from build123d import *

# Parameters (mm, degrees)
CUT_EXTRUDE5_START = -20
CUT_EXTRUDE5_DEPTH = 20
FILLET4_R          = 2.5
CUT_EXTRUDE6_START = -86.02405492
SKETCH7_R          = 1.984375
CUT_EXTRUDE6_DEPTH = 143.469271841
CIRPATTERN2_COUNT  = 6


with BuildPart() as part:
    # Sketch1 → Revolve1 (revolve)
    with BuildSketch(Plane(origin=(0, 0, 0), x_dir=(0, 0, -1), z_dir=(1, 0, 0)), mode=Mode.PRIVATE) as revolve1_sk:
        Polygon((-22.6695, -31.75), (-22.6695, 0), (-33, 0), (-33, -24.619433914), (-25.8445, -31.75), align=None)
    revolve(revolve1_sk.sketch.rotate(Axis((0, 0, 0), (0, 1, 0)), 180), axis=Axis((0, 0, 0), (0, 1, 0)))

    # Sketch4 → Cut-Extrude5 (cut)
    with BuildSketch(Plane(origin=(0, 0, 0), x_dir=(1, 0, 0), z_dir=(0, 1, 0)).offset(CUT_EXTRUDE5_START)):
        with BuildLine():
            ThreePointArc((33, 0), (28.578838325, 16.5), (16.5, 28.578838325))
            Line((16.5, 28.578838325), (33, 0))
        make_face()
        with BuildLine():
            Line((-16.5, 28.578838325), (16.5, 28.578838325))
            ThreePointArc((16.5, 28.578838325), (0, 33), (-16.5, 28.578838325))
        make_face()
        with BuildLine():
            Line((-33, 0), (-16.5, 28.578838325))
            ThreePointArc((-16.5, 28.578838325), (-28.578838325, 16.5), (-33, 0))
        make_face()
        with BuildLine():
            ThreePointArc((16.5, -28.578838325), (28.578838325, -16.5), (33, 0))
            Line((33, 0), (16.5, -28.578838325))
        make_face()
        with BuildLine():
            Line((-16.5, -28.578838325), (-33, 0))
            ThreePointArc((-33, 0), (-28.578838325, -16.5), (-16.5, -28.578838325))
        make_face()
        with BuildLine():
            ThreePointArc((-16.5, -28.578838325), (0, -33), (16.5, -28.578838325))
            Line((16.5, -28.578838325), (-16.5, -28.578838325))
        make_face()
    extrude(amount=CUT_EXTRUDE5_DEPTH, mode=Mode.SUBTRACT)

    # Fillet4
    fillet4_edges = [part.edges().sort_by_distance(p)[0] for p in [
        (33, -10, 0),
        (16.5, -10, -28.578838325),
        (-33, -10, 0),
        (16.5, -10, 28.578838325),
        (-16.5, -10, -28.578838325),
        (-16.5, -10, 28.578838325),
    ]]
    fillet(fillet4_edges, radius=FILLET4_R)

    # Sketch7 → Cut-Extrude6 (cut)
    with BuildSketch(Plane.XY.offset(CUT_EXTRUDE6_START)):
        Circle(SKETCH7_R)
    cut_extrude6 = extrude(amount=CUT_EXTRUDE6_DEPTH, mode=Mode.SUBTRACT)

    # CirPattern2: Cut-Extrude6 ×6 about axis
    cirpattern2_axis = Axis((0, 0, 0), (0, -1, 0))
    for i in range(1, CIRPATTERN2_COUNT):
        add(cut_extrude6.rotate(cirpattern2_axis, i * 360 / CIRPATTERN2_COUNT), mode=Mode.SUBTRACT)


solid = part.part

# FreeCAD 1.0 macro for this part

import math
import FreeCAD as App
import Part
import Sketcher
from FreeCAD import Vector
Q = App.Units.Quantity


def edges_at(feature, points):
    """Names of the edges that pass closest to the given points."""
    edges = feature.Shape.Edges
    near = lambda p: min(range(len(edges)), key=lambda i: edges[i].distToShape(Part.Vertex(*p))[0])
    return sorted({f"Edge{near(p) + 1}" for p in points})


def add_polygon(sketch, points):
    """Adds a closed chain of lines whose ends are joined by coincident constraints."""
    first, n = sketch.GeometryCount, len(points)
    for a, b in zip(points, points[1:] + points[:1]):
        sketch.addGeometry(Part.LineSegment(App.Vector(*a, 0), App.Vector(*b, 0)), False)
    for i in range(n):
        sketch.addConstraint(Sketcher.Constraint("Coincident", first + i, 2, first + (i + 1) % n, 1))

doc = App.newDocument("Part")
params = doc.addObject("Spreadsheet::Sheet", "Params")
for row, (alias, value) in enumerate([
    ("sketch1_width", "31.75 mm"),
    ("revolution_angle", "360 deg"),
    ("sketch2_radius", "33 mm"),
    ("sketch2_width", "33 mm"),
    ("pocket1_length", "20 mm"),
    ("fillet_radius", "2.5 mm"),
    ("pocket2_length", "143.469272 mm"),
], start=1):
    params.set(f"A{row}", alias)
    params.set(f"B{row}", "=" + value)
    params.setAlias(f"B{row}", alias)

body = doc.addObject("PartDesign::Body", "Body")

# Sketch on YZ plane
sketch1 = body.newObject("Sketcher::SketchObject", "Sketch")
sketch1.AttachmentSupport = (doc.getObject("YZ_Plane"), [""])
sketch1.MapMode = "FlatFace"
add_polygon(sketch1, [(-31.75, 22.6695), (0, 22.6695), (0, 33), (-24.619434, 33), (-31.75, 25.8445)])  # lines 0-4
sketch1.addConstraint([
    Sketcher.Constraint("Horizontal", 0),
    Sketcher.Constraint("Vertical", 1),
    Sketcher.Constraint("Horizontal", 2),
    Sketcher.Constraint("Vertical", 4),
    Sketcher.Constraint("PointOnObject", 0, 2, -2),
    Sketcher.Constraint("DistanceY", -1, 1, 1, 2, 33.0),
    Sketcher.Constraint("Angle", 3, Q("-134.9 deg")),
    Sketcher.Constraint("DistanceX", 0, 1, 0, 2, 31.75),
    Sketcher.Constraint("DistanceY", 4, 2, 4, 1, 3.175),
    Sketcher.Constraint("DistanceY", 1, 1, 1, 2, 10.3305),
])
sketch1.setExpression("Constraints[12]", "Params.sketch1_width")
revolution = body.newObject("PartDesign::Revolution", "Revolution")
revolution.Profile = sketch1
revolution.ReferenceAxis = (sketch1, ["H_Axis"])
revolution.setExpression("Angle", "Params.revolution_angle")

# Sketch on XZ plane
sketch2 = body.newObject("Sketcher::SketchObject", "Sketch001")
sketch2.AttachmentSupport = (doc.getObject("XZ_Plane"), [""])
sketch2.MapMode = "FlatFace"
sketch2.AttachmentOffset = App.Placement(Vector(0, 0, 20), App.Rotation())
sketch2.addGeometry([
    Part.ArcOfCircle(Part.Circle(Vector(0, 0, 0), Vector(0, 0, 1), 33), math.radians(-60), math.radians(0)),  # 0
    Part.LineSegment(Vector(16.5, -28.578838, 0), Vector(33, 0, 0)),  # 1
    Part.LineSegment(Vector(-16.5, -28.578838, 0), Vector(16.5, -28.578838, 0)),  # 2
    Part.ArcOfCircle(Part.Circle(Vector(0, 0, 0), Vector(0, 0, 1), 33), math.radians(-120), math.radians(-60)),  # 3
    Part.LineSegment(Vector(-33, 0, 0), Vector(-16.5, -28.578838, 0)),  # 4
    Part.ArcOfCircle(Part.Circle(Vector(0, 0, 0), Vector(0, 0, 1), 33), math.radians(180), math.radians(240)),  # 5
    Part.ArcOfCircle(Part.Circle(Vector(0, 0, 0), Vector(0, 0, 1), 33), math.radians(0), math.radians(60)),  # 6
    Part.LineSegment(Vector(33, 0, 0), Vector(16.5, 28.578838, 0)),  # 7
    Part.LineSegment(Vector(-16.5, 28.578838, 0), Vector(-33, 0, 0)),  # 8
    Part.ArcOfCircle(Part.Circle(Vector(0, 0, 0), Vector(0, 0, 1), 33), math.radians(120), math.radians(180)),  # 9
    Part.ArcOfCircle(Part.Circle(Vector(0, 0, 0), Vector(0, 0, 1), 33), math.radians(60), math.radians(120)),  # 10
    Part.LineSegment(Vector(16.5, 28.578838, 0), Vector(-16.5, 28.578838, 0)),  # 11
], False)
sketch2.addConstraint([
    Sketcher.Constraint("Coincident", 0, 1, 1, 1),
    Sketcher.Constraint("Coincident", 1, 2, 0, 2),
    Sketcher.Constraint("Coincident", 2, 1, 3, 1),
    Sketcher.Constraint("Coincident", 3, 2, 2, 2),
    Sketcher.Constraint("Coincident", 4, 1, 5, 1),
    Sketcher.Constraint("Coincident", 5, 2, 4, 2),
    Sketcher.Constraint("Coincident", 6, 1, 7, 1),
    Sketcher.Constraint("Coincident", 7, 2, 6, 2),
    Sketcher.Constraint("Coincident", 8, 1, 9, 1),
    Sketcher.Constraint("Coincident", 9, 2, 8, 2),
    Sketcher.Constraint("Coincident", 10, 1, 11, 1),
    Sketcher.Constraint("Coincident", 11, 2, 10, 2),
    Sketcher.Constraint("Horizontal", 2),
    Sketcher.Constraint("Horizontal", 11),
    Sketcher.Constraint("Coincident", 0, 3, -1, 1),
    Sketcher.Constraint("Coincident", 3, 3, -1, 1),
    Sketcher.Constraint("Coincident", 5, 3, -1, 1),
    Sketcher.Constraint("Coincident", 6, 3, -1, 1),
    Sketcher.Constraint("Coincident", 9, 3, -1, 1),
    Sketcher.Constraint("Coincident", 10, 3, -1, 1),
    Sketcher.Constraint("Coincident", 3, 2, 0, 1),
    Sketcher.Constraint("Coincident", 5, 2, 2, 1),
    Sketcher.Constraint("Coincident", 6, 1, 1, 2),
    Sketcher.Constraint("Coincident", 9, 2, 4, 1),
    Sketcher.Constraint("Coincident", 10, 1, 7, 2),
    Sketcher.Constraint("PointOnObject", 1, 2, -1),
    Sketcher.Constraint("PointOnObject", 4, 1, -1),
    Sketcher.Constraint("Parallel", 4, 7),
    Sketcher.Constraint("Parallel", 1, 8),
    Sketcher.Constraint("Radius", 0, 33.0),
    Sketcher.Constraint("DistanceX", 2, 1, 2, 2, 33.0),
])
sketch2.setExpression("Constraints[29]", "Params.sketch2_radius")
sketch2.setExpression("Constraints[30]", "Params.sketch2_width")
pocket1 = body.newObject("PartDesign::Pocket", "Pocket")
pocket1.Profile = sketch2
pocket1.setExpression("Length", "Params.pocket1_length")
doc.recompute()

fillet = body.newObject("PartDesign::Fillet", "Fillet")
fillet.Base = (pocket1, edges_at(pocket1, [
    (33, -10, 0),
    (16.5, -10, -28.579),
    (-33, -10, 0),
    (16.5, -10, 28.579),
    (-16.5, -10, -28.579),
    (-16.5, -10, 28.579),
]))
fillet.setExpression("Radius", "Params.fillet_radius")

# Sketch on XY plane
sketch3 = body.newObject("Sketcher::SketchObject", "Sketch002")
sketch3.AttachmentSupport = (doc.getObject("XY_Plane"), [""])
sketch3.MapMode = "FlatFace"
sketch3.AttachmentOffset = App.Placement(Vector(0, 0, -86.024055), App.Rotation())
sketch3.addGeometry(Part.Circle(Vector(0, 0, 0), Vector(0, 0, 1), 1.984375), False)
sketch3.addConstraint([
    Sketcher.Constraint("Coincident", 0, 3, -1, 1),
    Sketcher.Constraint("Diameter", 0, 3.96875),
])
pocket2 = body.newObject("PartDesign::Pocket", "Pocket001")
pocket2.Profile = sketch3
pocket2.setExpression("Length", "Params.pocket2_length")
pocket2.Reversed = True
doc.recompute()

polarpattern = body.newObject("PartDesign::PolarPattern", "PolarPattern")
polarpattern.Originals = [pocket2]
polarpattern.Axis = (doc.getObject("Y_Axis"), [""])
polarpattern.Angle = 360
polarpattern.Occurrences = 6
body.Tip = polarpattern

doc.recompute()
